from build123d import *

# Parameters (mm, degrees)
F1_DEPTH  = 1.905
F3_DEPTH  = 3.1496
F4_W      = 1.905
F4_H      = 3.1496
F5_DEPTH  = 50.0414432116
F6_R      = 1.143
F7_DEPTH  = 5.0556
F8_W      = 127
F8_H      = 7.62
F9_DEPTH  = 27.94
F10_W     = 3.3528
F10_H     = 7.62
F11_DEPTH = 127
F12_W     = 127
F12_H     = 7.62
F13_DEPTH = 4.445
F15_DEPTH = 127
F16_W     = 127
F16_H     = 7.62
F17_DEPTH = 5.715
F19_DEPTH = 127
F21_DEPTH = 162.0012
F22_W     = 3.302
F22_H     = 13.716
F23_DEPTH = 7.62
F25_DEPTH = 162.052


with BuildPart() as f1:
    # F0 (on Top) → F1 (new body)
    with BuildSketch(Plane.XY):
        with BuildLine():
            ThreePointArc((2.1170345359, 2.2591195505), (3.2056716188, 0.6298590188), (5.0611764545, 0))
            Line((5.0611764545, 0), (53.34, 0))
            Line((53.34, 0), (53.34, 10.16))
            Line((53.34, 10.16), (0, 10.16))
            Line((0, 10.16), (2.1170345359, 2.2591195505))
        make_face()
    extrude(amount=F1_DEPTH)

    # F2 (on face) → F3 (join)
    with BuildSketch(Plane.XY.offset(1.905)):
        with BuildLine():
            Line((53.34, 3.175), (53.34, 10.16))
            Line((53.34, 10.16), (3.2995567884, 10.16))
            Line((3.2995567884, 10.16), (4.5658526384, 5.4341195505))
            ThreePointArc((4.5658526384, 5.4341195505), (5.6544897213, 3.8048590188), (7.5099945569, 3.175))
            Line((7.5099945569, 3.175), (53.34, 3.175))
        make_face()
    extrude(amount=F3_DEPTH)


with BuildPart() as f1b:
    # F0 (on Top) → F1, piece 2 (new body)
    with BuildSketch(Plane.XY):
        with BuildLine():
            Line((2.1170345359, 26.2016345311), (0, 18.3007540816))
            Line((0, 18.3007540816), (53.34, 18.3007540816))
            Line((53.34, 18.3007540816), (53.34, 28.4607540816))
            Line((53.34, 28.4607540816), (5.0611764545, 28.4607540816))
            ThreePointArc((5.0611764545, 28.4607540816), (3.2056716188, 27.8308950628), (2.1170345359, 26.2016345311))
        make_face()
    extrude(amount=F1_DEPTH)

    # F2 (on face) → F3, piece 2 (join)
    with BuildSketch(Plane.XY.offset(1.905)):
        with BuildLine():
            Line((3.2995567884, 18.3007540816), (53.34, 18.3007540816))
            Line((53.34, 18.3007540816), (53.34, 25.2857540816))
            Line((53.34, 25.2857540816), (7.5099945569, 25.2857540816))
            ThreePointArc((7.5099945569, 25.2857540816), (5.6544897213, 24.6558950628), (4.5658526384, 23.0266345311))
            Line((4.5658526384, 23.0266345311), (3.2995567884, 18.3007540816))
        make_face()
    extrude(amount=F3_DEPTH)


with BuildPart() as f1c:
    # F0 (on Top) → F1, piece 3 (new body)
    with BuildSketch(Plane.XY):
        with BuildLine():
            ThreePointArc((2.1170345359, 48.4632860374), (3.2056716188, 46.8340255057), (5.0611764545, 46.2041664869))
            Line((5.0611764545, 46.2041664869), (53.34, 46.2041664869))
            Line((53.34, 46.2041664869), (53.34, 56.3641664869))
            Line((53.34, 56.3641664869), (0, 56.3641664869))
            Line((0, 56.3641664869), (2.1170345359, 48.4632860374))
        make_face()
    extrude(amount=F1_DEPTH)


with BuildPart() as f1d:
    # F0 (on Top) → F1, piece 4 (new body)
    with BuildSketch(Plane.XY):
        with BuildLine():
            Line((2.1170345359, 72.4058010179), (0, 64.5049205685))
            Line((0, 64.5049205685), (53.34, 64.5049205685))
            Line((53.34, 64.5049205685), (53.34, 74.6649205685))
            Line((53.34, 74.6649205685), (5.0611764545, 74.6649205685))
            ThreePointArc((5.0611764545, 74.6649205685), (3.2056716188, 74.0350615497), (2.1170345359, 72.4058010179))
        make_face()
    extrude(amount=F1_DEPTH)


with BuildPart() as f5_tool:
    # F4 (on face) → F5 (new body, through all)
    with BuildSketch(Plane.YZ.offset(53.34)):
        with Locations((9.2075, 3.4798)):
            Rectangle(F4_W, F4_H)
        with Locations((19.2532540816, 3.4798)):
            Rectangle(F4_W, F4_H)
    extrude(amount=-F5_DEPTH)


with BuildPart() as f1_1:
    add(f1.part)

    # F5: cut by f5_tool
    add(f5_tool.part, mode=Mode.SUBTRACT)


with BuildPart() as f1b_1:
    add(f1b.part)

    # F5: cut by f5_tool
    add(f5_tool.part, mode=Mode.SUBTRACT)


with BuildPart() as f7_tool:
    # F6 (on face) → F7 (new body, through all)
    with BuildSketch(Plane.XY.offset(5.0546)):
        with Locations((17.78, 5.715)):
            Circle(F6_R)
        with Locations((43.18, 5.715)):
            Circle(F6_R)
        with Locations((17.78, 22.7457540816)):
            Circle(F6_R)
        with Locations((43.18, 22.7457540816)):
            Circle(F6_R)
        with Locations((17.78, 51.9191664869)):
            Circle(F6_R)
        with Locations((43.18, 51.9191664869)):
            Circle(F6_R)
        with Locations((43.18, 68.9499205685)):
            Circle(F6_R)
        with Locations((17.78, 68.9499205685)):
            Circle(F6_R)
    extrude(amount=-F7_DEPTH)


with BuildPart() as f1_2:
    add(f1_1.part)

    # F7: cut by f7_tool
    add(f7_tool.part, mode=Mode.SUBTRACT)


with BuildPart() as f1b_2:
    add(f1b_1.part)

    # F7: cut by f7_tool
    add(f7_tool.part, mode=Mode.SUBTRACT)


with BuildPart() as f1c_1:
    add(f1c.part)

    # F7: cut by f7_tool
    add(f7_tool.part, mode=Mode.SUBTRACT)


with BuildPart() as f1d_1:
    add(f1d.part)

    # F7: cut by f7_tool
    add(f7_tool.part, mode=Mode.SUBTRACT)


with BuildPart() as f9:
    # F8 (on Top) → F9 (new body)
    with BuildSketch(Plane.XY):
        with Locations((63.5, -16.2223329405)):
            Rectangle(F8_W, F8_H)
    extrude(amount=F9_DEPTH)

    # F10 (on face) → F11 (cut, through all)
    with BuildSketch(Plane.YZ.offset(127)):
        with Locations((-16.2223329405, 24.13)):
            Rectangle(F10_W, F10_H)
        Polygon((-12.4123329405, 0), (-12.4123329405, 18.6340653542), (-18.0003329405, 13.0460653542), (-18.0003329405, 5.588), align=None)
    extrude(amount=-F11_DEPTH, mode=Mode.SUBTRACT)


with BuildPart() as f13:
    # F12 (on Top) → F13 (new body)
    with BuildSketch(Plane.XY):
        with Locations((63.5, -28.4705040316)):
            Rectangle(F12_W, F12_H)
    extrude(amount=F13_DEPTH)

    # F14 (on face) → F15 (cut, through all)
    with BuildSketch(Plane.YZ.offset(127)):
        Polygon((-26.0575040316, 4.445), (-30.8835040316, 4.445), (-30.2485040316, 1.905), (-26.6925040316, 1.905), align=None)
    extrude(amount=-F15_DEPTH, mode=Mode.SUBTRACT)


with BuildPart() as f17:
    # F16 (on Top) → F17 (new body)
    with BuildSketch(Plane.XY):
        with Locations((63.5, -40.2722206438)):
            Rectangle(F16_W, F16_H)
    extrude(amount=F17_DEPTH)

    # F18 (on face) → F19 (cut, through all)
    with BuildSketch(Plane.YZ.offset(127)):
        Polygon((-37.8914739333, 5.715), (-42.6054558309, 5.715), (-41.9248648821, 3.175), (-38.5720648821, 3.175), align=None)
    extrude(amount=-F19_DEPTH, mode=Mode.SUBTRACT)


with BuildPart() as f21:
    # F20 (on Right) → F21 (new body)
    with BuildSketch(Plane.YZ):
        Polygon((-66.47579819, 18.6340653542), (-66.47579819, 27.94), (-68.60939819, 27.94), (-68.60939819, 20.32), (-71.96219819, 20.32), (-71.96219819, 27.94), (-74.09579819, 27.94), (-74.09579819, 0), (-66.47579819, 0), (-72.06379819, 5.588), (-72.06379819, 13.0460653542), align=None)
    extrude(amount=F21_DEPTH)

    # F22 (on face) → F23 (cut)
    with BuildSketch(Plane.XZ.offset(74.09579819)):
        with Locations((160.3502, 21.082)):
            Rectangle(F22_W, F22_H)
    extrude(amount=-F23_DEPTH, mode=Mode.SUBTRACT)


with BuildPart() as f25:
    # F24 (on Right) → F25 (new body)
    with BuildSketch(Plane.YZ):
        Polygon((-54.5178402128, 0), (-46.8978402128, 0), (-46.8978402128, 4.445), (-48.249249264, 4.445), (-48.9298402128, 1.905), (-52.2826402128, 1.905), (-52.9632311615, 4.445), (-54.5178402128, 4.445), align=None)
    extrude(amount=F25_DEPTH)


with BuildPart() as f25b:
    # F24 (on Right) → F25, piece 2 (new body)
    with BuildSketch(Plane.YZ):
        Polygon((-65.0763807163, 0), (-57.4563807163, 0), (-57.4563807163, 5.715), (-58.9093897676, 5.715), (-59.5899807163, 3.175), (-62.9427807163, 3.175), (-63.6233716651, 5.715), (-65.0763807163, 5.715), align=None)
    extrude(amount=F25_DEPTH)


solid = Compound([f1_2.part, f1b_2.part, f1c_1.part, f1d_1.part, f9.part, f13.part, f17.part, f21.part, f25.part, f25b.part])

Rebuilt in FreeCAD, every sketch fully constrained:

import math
import FreeCAD as App
import Part
import Sketcher
Q = App.Units.Quantity


def add_polygon(sketch, points):
    """Adds a closed chain of lines whose ends are joined by coincident constraints."""
    first, n = sketch.GeometryCount, len(points)
    for a, b in zip(points, points[1:] + points[:1]):
        sketch.addGeometry(Part.LineSegment(App.Vector(*a, 0), App.Vector(*b, 0)), False)
    for i in range(n):
        sketch.addConstraint(Sketcher.Constraint("Coincident", first + i, 2, first + (i + 1) % n, 1))

doc = App.newDocument("Part")
params = doc.addObject("Spreadsheet::Sheet", "Params")
for row, (alias, value) in enumerate([
    ("sketch1_radius", "0.12 in"),
    ("sketch1_width", "2.1 in"),
    ("sketch1_height", "0.4 in"),
    ("pad1_length", "0.075 in"),
    ("sketch2_radius", "0.12 in"),
    ("sketch2_height", "0.275 in"),
    ("pad2_length", "0.124 in"),
    ("sketch3_radius", "0.12 in"),
    ("sketch3_width", "2.1 in"),
    ("sketch3_height", "0.4 in"),
    ("pad3_length", "0.075 in"),
    ("sketch4_radius", "0.12 in"),
    ("sketch4_height", "0.275 in"),
    ("pad4_length", "0.124 in"),
    ("sketch5_radius", "0.12 in"),
    ("sketch5_width", "2.1 in"),
    ("sketch5_height", "0.4 in"),
    ("pad5_length", "0.075 in"),
    ("sketch6_radius", "0.12 in"),
    ("sketch6_width", "2.1 in"),
    ("sketch6_height", "0.4 in"),
    ("pad6_length", "0.075 in"),
    ("sketch7_width", "0.075 in"),
    ("sketch7_height", "0.124 in"),
    ("pad7_length", "50.041443 mm"),
    ("sketch8_diameter", "0.09 in"),
    ("pad8_length", "5.0556 mm"),
    ("sketch9_width", "5 in"),
    ("sketch9_height", "0.3 in"),
    ("pad9_length", "1.1 in"),
    ("sketch10_height", "0.3 in"),
    ("sketch10_width", "0.132 in"),
    ("sketch11_width", "5 in"),
    ("sketch11_height", "0.3 in"),
    ("pad10_length", "0.175 in"),
    ("sketch12_width", "0.19 in"),
    ("sketch12_width2", "0.14 in"),
    ("sketch13_width", "5 in"),
    ("sketch13_height", "0.3 in"),
    ("pad11_length", "0.225 in"),
    ("sketch14_width", "0.132 in"),
    ("sketch15_width", "0.3 in"),
    ("sketch15_height", "1.1 in"),
    ("sketch15_width2", "0.084 in"),
    ("pad12_length", "6.378 in"),
    ("sketch16_width", "0.13 in"),
    ("sketch16_height", "0.54 in"),
    ("pocket4_length", "0.3 in"),
    ("sketch17_width", "0.3 in"),
    ("sketch17_width2", "0.132 in"),
    ("sketch17_height", "0.175 in"),
    ("pad13_length", "6.38 in"),
    ("sketch18_width", "0.3 in"),
    ("sketch18_width2", "0.132 in"),
    ("sketch18_height", "0.225 in"),
    ("pad14_length", "6.38 in"),
], start=1):
    params.set(f"A{row}", alias)
    params.set(f"B{row}", "=" + value)
    params.setAlias(f"B{row}", alias)

body = doc.addObject("PartDesign::Body", "Body")

sketch1 = body.newObject("Sketcher::SketchObject", "Sketch")
sketch1.AttachmentSupport = (doc.getObject("XY_Plane"), [""])
sketch1.MapMode = "FlatFace"
sketch1.addGeometry([
    Part.ArcOfCircle(Part.Circle(App.Vector(5.1, 3, 0), App.Vector(0, 0, 1), 3), math.radians(-165), math.radians(-90)),
    Part.LineSegment(App.Vector(5.1, 0, 0), App.Vector(53.3, 0, 0)),
    Part.LineSegment(App.Vector(53.3, 0, 0), App.Vector(53.3, 10.2, 0)),
    Part.LineSegment(App.Vector(53.3, 10.2, 0), App.Vector(0, 10.2, 0)),
    Part.LineSegment(App.Vector(0, 10.2, 0), App.Vector(2.1, 2.3, 0)),
], False)
sketch1.addConstraint([
    Sketcher.Constraint("Tangent", 0, 2, 1, 1),
    Sketcher.Constraint("Coincident", 1, 2, 2, 1),
    Sketcher.Constraint("Coincident", 2, 2, 3, 1),
    Sketcher.Constraint("Coincident", 3, 2, 4, 1),
    Sketcher.Constraint("Tangent", 4, 2, 0, 1),
    Sketcher.Constraint("Horizontal", 1),
    Sketcher.Constraint("Vertical", 2),
    Sketcher.Constraint("Horizontal", 3),
    Sketcher.Constraint("PointOnObject", 0, 2, -1),
    Sketcher.Constraint("PointOnObject", 3, 2, -2),
    Sketcher.Constraint("Radius", 0, Q("0.12 in")),
    Sketcher.Constraint("DistanceX", 3, 2, 3, 1, Q("2.1 in")),
    Sketcher.Constraint("DistanceY", 2, 1, 2, 2, Q("0.4 in")),
    Sketcher.Constraint("Angle", 4, Q("-75 deg")),
])
sketch1.setExpression("Constraints[10]", "Params.sketch1_radius")
sketch1.setExpression("Constraints[11]", "Params.sketch1_width")
sketch1.setExpression("Constraints[12]", "Params.sketch1_height")
pad1 = body.newObject("PartDesign::Pad", "Pad")
pad1.Profile = sketch1
pad1.setExpression("Length", "Params.pad1_length")

sketch2 = body.newObject("Sketcher::SketchObject", "Sketch001")
sketch2.AttachmentSupport = (doc.getObject("XY_Plane"), [""])
sketch2.MapMode = "FlatFace"
sketch2.AttachmentOffset = App.Placement(App.Vector(0, 0, 0.075 * 25.4), App.Rotation())
sketch2.addGeometry([
    Part.LineSegment(App.Vector(53.3, 3.2, 0), App.Vector(53.3, 10.2, 0)),
    Part.LineSegment(App.Vector(53.3, 10.2, 0), App.Vector(3.3, 10.2, 0)),
    Part.LineSegment(App.Vector(3.3, 10.2, 0), App.Vector(4.6, 5.4, 0)),
    Part.ArcOfCircle(Part.Circle(App.Vector(7.5, 6.2, 0), App.Vector(0, 0, 1), 3), math.radians(-165), math.radians(-90)),
    Part.LineSegment(App.Vector(7.5, 3.2, 0), App.Vector(53.3, 3.2, 0)),
], False)
sketch2.addConstraint([
    Sketcher.Constraint("Coincident", 0, 2, 1, 1),
    Sketcher.Constraint("Coincident", 1, 2, 2, 1),
    Sketcher.Constraint("Tangent", 2, 2, 3, 1),
    Sketcher.Constraint("Tangent", 3, 2, 4, 1),
    Sketcher.Constraint("Coincident", 4, 2, 0, 1),
    Sketcher.Constraint("Vertical", 0),
    Sketcher.Constraint("Horizontal", 1),
    Sketcher.Constraint("Horizontal", 4),
    Sketcher.Constraint("Radius", 3, Q("0.12 in")),
    Sketcher.Constraint("Angle", 2, Q("-75 deg")),
    Sketcher.Constraint("DistanceX", -1, 1, 0, 2, Q("2.1 in")),
    Sketcher.Constraint("DistanceY", -1, 1, 0, 2, Q("0.4 in")),
    Sketcher.Constraint("DistanceY", 0, 1, 0, 2, Q("0.275 in")),
    Sketcher.Constraint("DistanceX", 1, 2, 1, 1, 50.040443),
])
sketch2.setExpression("Constraints[8]", "Params.sketch2_radius")
sketch2.setExpression("Constraints[12]", "Params.sketch2_height")
pad2 = body.newObject("PartDesign::Pad", "Pad001")
pad2.Profile = sketch2
pad2.setExpression("Length", "Params.pad2_length")
body2 = doc.addObject("PartDesign::Body", "Body001")

sketch3 = body2.newObject("Sketcher::SketchObject", "Sketch002")
sketch3.AttachmentSupport = (doc.getObject("XY_Plane001"), [""])
sketch3.MapMode = "FlatFace"
sketch3.addGeometry([
    Part.LineSegment(App.Vector(2.1, 26.2, 0), App.Vector(0, 18.3, 0)),
    Part.LineSegment(App.Vector(0, 18.3, 0), App.Vector(53.3, 18.3, 0)),
    Part.LineSegment(App.Vector(53.3, 18.3, 0), App.Vector(53.3, 28.5, 0)),
    Part.LineSegment(App.Vector(53.3, 28.5, 0), App.Vector(5.1, 28.5, 0)),
    Part.ArcOfCircle(Part.Circle(App.Vector(5.1, 25.4, 0), App.Vector(0, 0, 1), 3), math.radians(90), math.radians(165)),
], False)
sketch3.addConstraint([
    Sketcher.Constraint("Coincident", 0, 2, 1, 1),
    Sketcher.Constraint("Coincident", 1, 2, 2, 1),
    Sketcher.Constraint("Coincident", 2, 2, 3, 1),
    Sketcher.Constraint("Tangent", 3, 2, 4, 1),
    Sketcher.Constraint("Tangent", 4, 2, 0, 1),
    Sketcher.Constraint("Horizontal", 1),
    Sketcher.Constraint("Vertical", 2),
    Sketcher.Constraint("Horizontal", 3),
    Sketcher.Constraint("PointOnObject", 0, 2, -2),
    Sketcher.Constraint("Radius", 4, Q("0.12 in")),
    Sketcher.Constraint("DistanceX", 1, 1, 1, 2, Q("2.1 in")),
    Sketcher.Constraint("DistanceY", 2, 1, 2, 2, Q("0.4 in")),
    Sketcher.Constraint("Angle", 0, Q("-105 deg")),
    Sketcher.Constraint("DistanceY", -1, 1, 4, 3, 25.412754),
])
sketch3.setExpression("Constraints[9]", "Params.sketch3_radius")
sketch3.setExpression("Constraints[10]", "Params.sketch3_width")
sketch3.setExpression("Constraints[11]", "Params.sketch3_height")
pad3 = body2.newObject("PartDesign::Pad", "Pad002")
pad3.Profile = sketch3
pad3.setExpression("Length", "Params.pad3_length")

sketch4 = body2.newObject("Sketcher::SketchObject", "Sketch003")
sketch4.AttachmentSupport = (doc.getObject("XY_Plane001"), [""])
sketch4.MapMode = "FlatFace"
sketch4.AttachmentOffset = App.Placement(App.Vector(0, 0, 0.075 * 25.4), App.Rotation())
sketch4.addGeometry([
    Part.LineSegment(App.Vector(3.3, 18.3, 0), App.Vector(53.3, 18.3, 0)),
    Part.LineSegment(App.Vector(53.3, 18.3, 0), App.Vector(53.3, 25.3, 0)),
    Part.LineSegment(App.Vector(53.3, 25.3, 0), App.Vector(7.5, 25.3, 0)),
    Part.ArcOfCircle(Part.Circle(App.Vector(7.5, 22.2, 0), App.Vector(0, 0, 1), 3), math.radians(90), math.radians(165)),
    Part.LineSegment(App.Vector(4.6, 23, 0), App.Vector(3.3, 18.3, 0)),
], False)
sketch4.addConstraint([
    Sketcher.Constraint("Coincident", 0, 2, 1, 1),
    Sketcher.Constraint("Coincident", 1, 2, 2, 1),
    Sketcher.Constraint("Tangent", 2, 2, 3, 1),
    Sketcher.Constraint("Tangent", 3, 2, 4, 1),
    Sketcher.Constraint("Coincident", 4, 2, 0, 1),
    Sketcher.Constraint("Horizontal", 0),
    Sketcher.Constraint("Vertical", 1),
    Sketcher.Constraint("Horizontal", 2),
    Sketcher.Constraint("Radius", 3, Q("0.12 in")),
    Sketcher.Constraint("Angle", 4, Q("-105 deg")),
    Sketcher.Constraint("DistanceX", -1, 1, 0, 2, Q("2.1 in")),
    Sketcher.Constraint("DistanceY", 1, 1, 1, 2, Q("0.275 in")),
    Sketcher.Constraint("DistanceX", 0, 1, 0, 2, 50.040443),
    Sketcher.Constraint("DistanceY", -1, 1, 3, 3, 22.237754),
])
sketch4.setExpression("Constraints[8]", "Params.sketch4_radius")
sketch4.setExpression("Constraints[11]", "Params.sketch4_height")
pad4 = body2.newObject("PartDesign::Pad", "Pad003")
pad4.Profile = sketch4
pad4.setExpression("Length", "Params.pad4_length")
body3 = doc.addObject("PartDesign::Body", "Body002")

sketch5 = body3.newObject("Sketcher::SketchObject", "Sketch004")
sketch5.AttachmentSupport = (doc.getObject("XY_Plane002"), [""])
sketch5.MapMode = "FlatFace"
sketch5.addGeometry([
    Part.ArcOfCircle(Part.Circle(App.Vector(5.1, 49.3, 0), App.Vector(0, 0, 1), 3), math.radians(-165), math.radians(-90)),
    Part.LineSegment(App.Vector(5.1, 46.2, 0), App.Vector(53.3, 46.2, 0)),
    Part.LineSegment(App.Vector(53.3, 46.2, 0), App.Vector(53.3, 56.4, 0)),
    Part.LineSegment(App.Vector(53.3, 56.4, 0), App.Vector(0, 56.4, 0)),
    Part.LineSegment(App.Vector(0, 56.4, 0), App.Vector(2.1, 48.5, 0)),
], False)
sketch5.addConstraint([
    Sketcher.Constraint("Tangent", 0, 2, 1, 1),
    Sketcher.Constraint("Coincident", 1, 2, 2, 1),
    Sketcher.Constraint("Coincident", 2, 2, 3, 1),
    Sketcher.Constraint("Coincident", 3, 2, 4, 1),
    Sketcher.Constraint("Tangent", 4, 2, 0, 1),
    Sketcher.Constraint("Horizontal", 1),
    Sketcher.Constraint("Vertical", 2),
    Sketcher.Constraint("Horizontal", 3),
    Sketcher.Constraint("PointOnObject", 3, 2, -2),
    Sketcher.Constraint("Radius", 0, Q("0.12 in")),
    Sketcher.Constraint("DistanceX", 3, 2, 3, 1, Q("2.1 in")),
    Sketcher.Constraint("DistanceY", 2, 1, 2, 2, Q("0.4 in")),
    Sketcher.Constraint("Angle", 4, Q("-75 deg")),
    Sketcher.Constraint("DistanceY", -1, 1, 0, 3, 49.252166),
])
sketch5.setExpression("Constraints[9]", "Params.sketch5_radius")
sketch5.setExpression("Constraints[10]", "Params.sketch5_width")
sketch5.setExpression("Constraints[11]", "Params.sketch5_height")
pad5 = body3.newObject("PartDesign::Pad", "Pad004")
pad5.Profile = sketch5
pad5.setExpression("Length", "Params.pad5_length")
body4 = doc.addObject("PartDesign::Body", "Body003")

sketch6 = body4.newObject("Sketcher::SketchObject", "Sketch005")
sketch6.AttachmentSupport = (doc.getObject("XY_Plane003"), [""])
sketch6.MapMode = "FlatFace"
sketch6.addGeometry([
    Part.LineSegment(App.Vector(2.1, 72.4, 0), App.Vector(0, 64.5, 0)),
    Part.LineSegment(App.Vector(0, 64.5, 0), App.Vector(53.3, 64.5, 0)),
    Part.LineSegment(App.Vector(53.3, 64.5, 0), App.Vector(53.3, 74.7, 0)),
    Part.LineSegment(App.Vector(53.3, 74.7, 0), App.Vector(5.1, 74.7, 0)),
    Part.ArcOfCircle(Part.Circle(App.Vector(5.1, 71.6, 0), App.Vector(0, 0, 1), 3), math.radians(90), math.radians(165)),
], False)
sketch6.addConstraint([
    Sketcher.Constraint("Coincident", 0, 2, 1, 1),
    Sketcher.Constraint("Coincident", 1, 2, 2, 1),
    Sketcher.Constraint("Coincident", 2, 2, 3, 1),
    Sketcher.Constraint("Tangent", 3, 2, 4, 1),
    Sketcher.Constraint("Tangent", 4, 2, 0, 1),
    Sketcher.Constraint("Horizontal", 1),
    Sketcher.Constraint("Vertical", 2),
    Sketcher.Constraint("Horizontal", 3),
    Sketcher.Constraint("PointOnObject", 0, 2, -2),
    Sketcher.Constraint("Radius", 4, Q("0.12 in")),
    Sketcher.Constraint("DistanceX", 1, 1, 1, 2, Q("2.1 in")),
    Sketcher.Constraint("DistanceY", 2, 1, 2, 2, Q("0.4 in")),
    Sketcher.Constraint("Angle", 0, Q("-105 deg")),
    Sketcher.Constraint("DistanceY", -1, 1, 4, 2, 72.405801),
])
sketch6.setExpression("Constraints[9]", "Params.sketch6_radius")
sketch6.setExpression("Constraints[10]", "Params.sketch6_width")
sketch6.setExpression("Constraints[11]", "Params.sketch6_height")
pad6 = body4.newObject("PartDesign::Pad", "Pad005")
pad6.Profile = sketch6
pad6.setExpression("Length", "Params.pad6_length")
body5 = doc.addObject("PartDesign::Body", "Body004")
body5.AllowCompound = True

sketch7 = body5.newObject("Sketcher::SketchObject", "Sketch006")
sketch7.AttachmentSupport = (doc.getObject("YZ_Plane004"), [""])
sketch7.MapMode = "FlatFace"
sketch7.AttachmentOffset = App.Placement(App.Vector(0, 0, 2.1 * 25.4), App.Rotation())
add_polygon(sketch7, [(8.3, 5.1), (8.3, 1.9), (10.2, 1.9), (10.2, 5.1)])
add_polygon(sketch7, [(18.3, 5.1), (18.3, 1.9), (20.2, 1.9), (20.2, 5.1)])
sketch7.addConstraint([
    Sketcher.Constraint("Vertical", 0),
    Sketcher.Constraint("Horizontal", 1),
    Sketcher.Constraint("Vertical", 2),
    Sketcher.Constraint("Horizontal", 3),
    Sketcher.Constraint("Vertical", 4),
    Sketcher.Constraint("Horizontal", 5),
    Sketcher.Constraint("Vertical", 6),
    Sketcher.Constraint("Horizontal", 7),
    Sketcher.Constraint("Horizontal", 1, 2, 4, 2),
    Sketcher.Constraint("Horizontal", 3, 2, 6, 2),
    Sketcher.Constraint("Equal", 3, 5),
    Sketcher.Constraint("DistanceX", -1, 1, 1, 2, Q("0.4 in")),
    Sketcher.Constraint("DistanceX", 1, 1, 1, 2, Q("0.075 in")),
    Sketcher.Constraint("DistanceY", 0, 2, 0, 1, Q("0.124 in")),
    Sketcher.Constraint("DistanceY", -1, 1, 0, 2, Q("0.075 in")),
    Sketcher.Constraint("DistanceX", -1, 1, 4, 2, 18.300754),
])
sketch7.setExpression("Constraints[20]", "Params.sketch7_width")
sketch7.setExpression("Constraints[21]", "Params.sketch7_height")
pad7 = body5.newObject("PartDesign::Pad", "Pad006")
pad7.Profile = sketch7
pad7.setExpression("Length", "Params.pad7_length")
pad7.Reversed = True
doc.recompute()

body6 = doc.addObject("PartDesign::Body", "Body005")
body6.BaseFeature = body5
boolean = body.newObject("PartDesign::Boolean", "Boolean")
boolean.Type = "Cut"
boolean.addObjects([body6])
doc.recompute()

boolean2 = body2.newObject("PartDesign::Boolean", "Boolean001")
boolean2.Type = "Cut"
boolean2.addObjects([body5])
body7 = doc.addObject("PartDesign::Body", "Body006")
body7.AllowCompound = True

sketch8 = body7.newObject("Sketcher::SketchObject", "Sketch007")
sketch8.AttachmentSupport = (doc.getObject("XY_Plane006"), [""])
sketch8.MapMode = "FlatFace"
sketch8.AttachmentOffset = App.Placement(App.Vector(0, 0, 0.199 * 25.4), App.Rotation())
sketch8.addGeometry([
    Part.Circle(App.Vector(17.8, 5.7, 0), App.Vector(0, 0, 1), 1.1),
    Part.Circle(App.Vector(43.2, 5.7, 0), App.Vector(0, 0, 1), 1.1),
    Part.Circle(App.Vector(17.8, 22.7, 0), App.Vector(0, 0, 1), 1.1),
    Part.Circle(App.Vector(43.2, 22.7, 0), App.Vector(0, 0, 1), 1.1),
    Part.Circle(App.Vector(17.8, 51.9, 0), App.Vector(0, 0, 1), 1.1),
    Part.Circle(App.Vector(43.2, 51.9, 0), App.Vector(0, 0, 1), 1.1),
    Part.Circle(App.Vector(43.2, 68.9, 0), App.Vector(0, 0, 1), 1.1),
    Part.Circle(App.Vector(17.8, 68.9, 0), App.Vector(0, 0, 1), 1.1),
], False)
sketch8.addConstraint([
    Sketcher.Constraint("Equal", 0, 1),
    Sketcher.Constraint("Equal", 1, 2),
    Sketcher.Constraint("Equal", 2, 3),
    Sketcher.Constraint("Equal", 3, 4),
    Sketcher.Constraint("Equal", 4, 5),
    Sketcher.Constraint("Equal", 5, 6),
    Sketcher.Constraint("Equal", 6, 7),
    Sketcher.Constraint("Horizontal", 0, 3, 1, 3),
    Sketcher.Constraint("Horizontal", 2, 3, 3, 3),
    Sketcher.Constraint("Horizontal", 4, 3, 5, 3),
    Sketcher.Constraint("Horizontal", 6, 3, 7, 3),
    Sketcher.Constraint("Vertical", 0, 3, 2, 3),
    Sketcher.Constraint("Vertical", 1, 3, 3, 3),
    Sketcher.Constraint("Vertical", 2, 3, 4, 3),
    Sketcher.Constraint("Vertical", 3, 3, 5, 3),
    Sketcher.Constraint("Vertical", 5, 3, 6, 3),
    Sketcher.Constraint("Vertical", 4, 3, 7, 3),
    Sketcher.Constraint("Diameter", 0, Q("0.09 in")),
    Sketcher.Constraint("DistanceX", 0, 3, 1, 3, Q("1 in")),
    Sketcher.Constraint("DistanceX", -1, 1, 0, 3, Q("0.7 in")),
    Sketcher.Constraint("DistanceY", -1, 1, 0, 3, Q("0.225 in")),
    Sketcher.Constraint("DistanceY", -1, 1, 6, 3, 68.949921),
    Sketcher.Constraint("DistanceY", -1, 1, 2, 3, 22.745754),
    Sketcher.Constraint("DistanceY", -1, 1, 4, 3, 51.919166),
])
sketch8.setExpression("Constraints[17]", "Params.sketch8_diameter")
pad8 = body7.newObject("PartDesign::Pad", "Pad007")
pad8.Profile = sketch8
pad8.setExpression("Length", "Params.pad8_length")
pad8.Reversed = True
doc.recompute()

body8 = doc.addObject("PartDesign::Body", "Body007")
body8.BaseFeature = body7
boolean3 = body.newObject("PartDesign::Boolean", "Boolean002")
boolean3.Type = "Cut"
boolean3.addObjects([body8])
doc.recompute()

body9 = doc.addObject("PartDesign::Body", "Body008")
body9.BaseFeature = body7
boolean4 = body2.newObject("PartDesign::Boolean", "Boolean003")
boolean4.Type = "Cut"
boolean4.addObjects([body9])
doc.recompute()

body10 = doc.addObject("PartDesign::Body", "Body009")
body10.BaseFeature = body7
boolean5 = body3.newObject("PartDesign::Boolean", "Boolean004")
boolean5.Type = "Cut"
boolean5.addObjects([body10])
doc.recompute()

boolean6 = body4.newObject("PartDesign::Boolean", "Boolean005")
boolean6.Type = "Cut"
boolean6.addObjects([body7])
body11 = doc.addObject("PartDesign::Body", "Body010")

sketch9 = body11.newObject("Sketcher::SketchObject", "Sketch008")
sketch9.AttachmentSupport = (doc.getObject("XY_Plane010"), [""])
sketch9.MapMode = "FlatFace"
add_polygon(sketch9, [(0, -12), (0, -20), (127, -20), (127, -12)])
sketch9.addConstraint([
    Sketcher.Constraint("Vertical", 0),
    Sketcher.Constraint("Horizontal", 1),
    Sketcher.Constraint("Vertical", 2),
    Sketcher.Constraint("Horizontal", 3),
    Sketcher.Constraint("PointOnObject", 0, 2, -2),
    Sketcher.Constraint("DistanceX", 1, 1, 1, 2, Q("5 in")),
    Sketcher.Constraint("DistanceY", 0, 2, 0, 1, Q("0.3 in")),
    Sketcher.Constraint("DistanceY", 0, 2, -1, 1, 20.032333),
])
sketch9.setExpression("Constraints[9]", "Params.sketch9_width")
sketch9.setExpression("Constraints[10]", "Params.sketch9_height")
pad9 = body11.newObject("PartDesign::Pad", "Pad008")
pad9.Profile = sketch9
pad9.setExpression("Length", "Params.pad9_length")

sketch10 = body11.newObject("Sketcher::SketchObject", "Sketch009")
sketch10.AttachmentSupport = (doc.getObject("YZ_Plane010"), [""])
sketch10.MapMode = "FlatFace"
sketch10.AttachmentOffset = App.Placement(App.Vector(0, 0, 5 * 25.4), App.Rotation())
add_polygon(sketch10, [(-17.9, 27.9), (-17.9, 20.3), (-14.5, 20.3), (-14.5, 27.9)])
add_polygon(sketch10, [(-12.4, 0), (-12.4, 18.6), (-18, 13), (-18, 5.6)])
sketch10.addConstraint([
    Sketcher.Constraint("Vertical", 0),
    Sketcher.Constraint("Horizontal", 1),
    Sketcher.Constraint("Vertical", 2),
    Sketcher.Constraint("Horizontal", 3),
    Sketcher.Constraint("Vertical", 4),
    Sketcher.Constraint("Vertical", 6),
    Sketcher.Constraint("PointOnObject", 7, 2, -1),
    Sketcher.Constraint("Perpendicular", 5, 7),
    Sketcher.Constraint("Equal", 5, 7),
    Sketcher.Constraint("DistanceY", 0, 2, 0, 1, Q("0.3 in")),
    Sketcher.Constraint("DistanceY", -1, 1, 0, 2, Q("0.8 in")),
    Sketcher.Constraint("DistanceX", 1, 1, 1, 2, Q("0.132 in")),
    Sketcher.Constraint("DistanceY", -1, 1, 6, 2, Q("0.22 in")),
    Sketcher.Constraint("DistanceX", 1, 2, 4, 2, Q("0.084 in")),
    Sketcher.Constraint("DistanceY", 4, 1, 4, 2, 18.634065),
    Sketcher.Constraint("DistanceX", 0, 2, -1, 1, 17.898733),
])
sketch10.setExpression("Constraints[17]", "Params.sketch10_height")
sketch10.setExpression("Constraints[19]", "Params.sketch10_width")
pocket1 = body11.newObject("PartDesign::Pocket", "Pocket")
pocket1.Profile = sketch10
pocket1.Type = "ThroughAll"
body12 = doc.addObject("PartDesign::Body", "Body011")

sketch11 = body12.newObject("Sketcher::SketchObject", "Sketch010")
sketch11.AttachmentSupport = (doc.getObject("XY_Plane011"), [""])
sketch11.MapMode = "FlatFace"
add_polygon(sketch11, [(0, -25), (0, -32), (127, -32), (127, -25)])
sketch11.addConstraint([
    Sketcher.Constraint("Vertical", 0),
    Sketcher.Constraint("Horizontal", 1),
    Sketcher.Constraint("Vertical", 2),
    Sketcher.Constraint("Horizontal", 3),
    Sketcher.Constraint("PointOnObject", 0, 2, -2),
    Sketcher.Constraint("DistanceX", 1, 1, 1, 2, Q("5 in")),
    Sketcher.Constraint("DistanceY", 0, 2, 0, 1, Q("0.3 in")),
    Sketcher.Constraint("DistanceY", 0, 2, -1, 1, 32.280504),
])
sketch11.setExpression("Constraints[9]", "Params.sketch11_width")
sketch11.setExpression("Constraints[10]", "Params.sketch11_height")
pad10 = body12.newObject("PartDesign::Pad", "Pad009")
pad10.Profile = sketch11
pad10.setExpression("Length", "Params.pad10_length")

sketch12 = body12.newObject("Sketcher::SketchObject", "Sketch011")
sketch12.AttachmentSupport = (doc.getObject("YZ_Plane011"), [""])
sketch12.MapMode = "FlatFace"
sketch12.AttachmentOffset = App.Placement(App.Vector(0, 0, 5 * 25.4), App.Rotation())
add_polygon(sketch12, [(-26.1, 4.4), (-30.9, 4.4), (-30.2, 1.9), (-26.7, 1.9)])
sketch12.addConstraint([
    Sketcher.Constraint("Horizontal", 0),
    Sketcher.Constraint("Horizontal", 2),
    Sketcher.Constraint("Equal", 1, 3),
    Sketcher.Constraint("DistanceX", 0, 2, 0, 1, Q("0.19 in")),
    Sketcher.Constraint("DistanceX", 2, 1, 2, 2, Q("0.14 in")),
    Sketcher.Constraint("DistanceY", 1, 2, 0, 2, Q("0.1 in")),
    Sketcher.Constraint("DistanceY", -1, 1, 0, 2, Q("0.175 in")),
    Sketcher.Constraint("DistanceX", 0, 2, -1, 1, 30.883504),
])
sketch12.setExpression("Constraints[7]", "Params.sketch12_width")
sketch12.setExpression("Constraints[8]", "Params.sketch12_width2")
pocket2 = body12.newObject("PartDesign::Pocket", "Pocket001")
pocket2.Profile = sketch12
pocket2.Type = "ThroughAll"
body13 = doc.addObject("PartDesign::Body", "Body012")

sketch13 = body13.newObject("Sketcher::SketchObject", "Sketch012")
sketch13.AttachmentSupport = (doc.getObject("XY_Plane012"), [""])
sketch13.MapMode = "FlatFace"
add_polygon(sketch13, [(0, -36), (0, -44), (127, -44), (127, -36)])
sketch13.addConstraint([
    Sketcher.Constraint("Vertical", 0),
    Sketcher.Constraint("Horizontal", 1),
    Sketcher.Constraint("Vertical", 2),
    Sketcher.Constraint("Horizontal", 3),
    Sketcher.Constraint("PointOnObject", 0, 2, -2),
    Sketcher.Constraint("DistanceX", 1, 1, 1, 2, Q("5 in")),
    Sketcher.Constraint("DistanceY", 0, 2, 0, 1, Q("0.3 in")),
    Sketcher.Constraint("DistanceY", 0, 2, -1, 1, 44.082221),
])
sketch13.setExpression("Constraints[9]", "Params.sketch13_width")
sketch13.setExpression("Constraints[10]", "Params.sketch13_height")
pad11 = body13.newObject("PartDesign::Pad", "Pad010")
pad11.Profile = sketch13
pad11.setExpression("Length", "Params.pad11_length")

sketch14 = body13.newObject("Sketcher::SketchObject", "Sketch013")
sketch14.AttachmentSupport = (doc.getObject("YZ_Plane012"), [""])
sketch14.MapMode = "FlatFace"
sketch14.AttachmentOffset = App.Placement(App.Vector(0, 0, 5 * 25.4), App.Rotation())
add_polygon(sketch14, [(-37.9, 5.7), (-42.6, 5.7), (-41.9, 3.2), (-38.6, 3.2)])
sketch14.addConstraint([
    Sketcher.Constraint("Horizontal", 0),
    Sketcher.Constraint("Horizontal", 2),
    Sketcher.Constraint("Equal", 1, 3),
    Sketcher.Constraint("Angle", 1, Q("-75 deg")),
    Sketcher.Constraint("DistanceY", 1, 2, 0, 2, Q("0.1 in")),
    Sketcher.Constraint("DistanceX", 2, 1, 2, 2, Q("0.132 in")),
    Sketcher.Constraint("DistanceY", -1, 1, 0, 2, Q("0.225 in")),
    Sketcher.Constraint("DistanceX", 0, 2, -1, 1, 42.605456),
])
sketch14.setExpression("Constraints[9]", "Params.sketch14_width")
pocket3 = body13.newObject("PartDesign::Pocket", "Pocket002")
pocket3.Profile = sketch14
pocket3.Type = "ThroughAll"
body14 = doc.addObject("PartDesign::Body", "Body013")

sketch15 = body14.newObject("Sketcher::SketchObject", "Sketch014")
sketch15.AttachmentSupport = (doc.getObject("YZ_Plane013"), [""])
sketch15.MapMode = "FlatFace"
add_polygon(sketch15, [(-66.5, 18.6), (-66.5, 27.9), (-68.6, 27.9), (-68.6, 20.3), (-72, 20.3), (-72, 27.9), (-74.1, 27.9), (-74.1, 0), (-66.5, 0), (-72.1, 5.6), (-72.1, 13)])
sketch15.addConstraint([
    Sketcher.Constraint("Vertical", 0),
    Sketcher.Constraint("Horizontal", 1),
    Sketcher.Constraint("Vertical", 2),
    Sketcher.Constraint("Horizontal", 3),
    Sketcher.Constraint("Vertical", 4),
    Sketcher.Constraint("Horizontal", 5),
    Sketcher.Constraint("Vertical", 6),
    Sketcher.Constraint("Horizontal", 7),
    Sketcher.Constraint("Vertical", 9),
    Sketcher.Constraint("PointOnObject", 6, 2, -1),
    Sketcher.Constraint("Perpendicular", 8, 10),
    Sketcher.Constraint("Horizontal", 1, 2, 4, 2),
    Sketcher.Constraint("Vertical", 0, 2, 7, 2),
    Sketcher.Constraint("Equal", 1, 5),
    Sketcher.Constraint("Equal", 7, 2),
    Sketcher.Constraint("Equal", 8, 10),
    Sketcher.Constraint("DistanceX", 7, 1, 7, 2, Q("0.3 in")),
    Sketcher.Constraint("DistanceY", 6, 2, 6, 1, Q("1.1 in")),
    Sketcher.Constraint("DistanceX", 1, 2, 1, 1, Q("0.084 in")),
    Sketcher.Constraint("DistanceY", -1, 1, 8, 2, Q("0.22 in")),
    Sketcher.Constraint("DistanceX", 0, 2, -1, 1, 66.475798),
    Sketcher.Constraint("DistanceY", 0, 1, 0, 2, 9.305935),
])
sketch15.setExpression("Constraints[27]", "Params.sketch15_width")
sketch15.setExpression("Constraints[28]", "Params.sketch15_height")
sketch15.setExpression("Constraints[29]", "Params.sketch15_width2")
pad12 = body14.newObject("PartDesign::Pad", "Pad011")
pad12.Profile = sketch15
pad12.setExpression("Length", "Params.pad12_length")

sketch16 = body14.newObject("Sketcher::SketchObject", "Sketch015")
sketch16.AttachmentSupport = (doc.getObject("XZ_Plane013"), [""])
sketch16.MapMode = "FlatFace"
sketch16.AttachmentOffset = App.Placement(App.Vector(0, 0, 74.095798), App.Rotation())
add_polygon(sketch16, [(158.7, 27.9), (158.7, 14.2), (162, 14.2), (162, 27.9)])
sketch16.addConstraint([
    Sketcher.Constraint("Vertical", 0),
    Sketcher.Constraint("Horizontal", 1),
    Sketcher.Constraint("Vertical", 2),
    Sketcher.Constraint("Horizontal", 3),
    Sketcher.Constraint("DistanceX", 1, 1, 1, 2, Q("0.13 in")),
    Sketcher.Constraint("DistanceY", 0, 2, 0, 1, Q("0.54 in")),
    Sketcher.Constraint("DistanceY", -1, 1, 2, 2, Q("1.1 in")),
    Sketcher.Constraint("DistanceX", -1, 1, 0, 2, Q("6.248 in")),
])
sketch16.setExpression("Constraints[8]", "Params.sketch16_width")
sketch16.setExpression("Constraints[9]", "Params.sketch16_height")
pocket4 = body14.newObject("PartDesign::Pocket", "Pocket003")
pocket4.Profile = sketch16
pocket4.setExpression("Length", "Params.pocket4_length")
body15 = doc.addObject("PartDesign::Body", "Body014")

sketch17 = body15.newObject("Sketcher::SketchObject", "Sketch016")
sketch17.AttachmentSupport = (doc.getObject("YZ_Plane014"), [""])
sketch17.MapMode = "FlatFace"
add_polygon(sketch17, [(-54.5, 0), (-46.9, 0), (-46.9, 4.4), (-48.2, 4.4), (-48.9, 1.9), (-52.3, 1.9), (-53, 4.4), (-54.5, 4.4)])
sketch17.addConstraint([
    Sketcher.Constraint("Horizontal", 0),
    Sketcher.Constraint("Vertical", 1),
    Sketcher.Constraint("Horizontal", 2),
    Sketcher.Constraint("Horizontal", 4),
    Sketcher.Constraint("Horizontal", 6),
    Sketcher.Constraint("Vertical", 7),
    Sketcher.Constraint("PointOnObject", 0, 2, -1),
    Sketcher.Constraint("Horizontal", 2, 2, 5, 2),
    Sketcher.Constraint("Equal", 3, 5),
    Sketcher.Constraint("DistanceX", 0, 1, 0, 2, Q("0.3 in")),
    Sketcher.Constraint("Angle", 3, Q("-105 deg")),
    Sketcher.Constraint("DistanceY", 3, 2, 2, 2, Q("0.1 in")),
    Sketcher.Constraint("DistanceX", 4, 2, 4, 1, Q("0.132 in")),
    Sketcher.Constraint("DistanceY", 1, 1, 1, 2, Q("0.175 in")),
    Sketcher.Constraint("DistanceX", 3, 2, 0, 2, Q("0.08 in")),
    Sketcher.Constraint("DistanceX", 0, 2, -1, 1, 46.89784),
])
sketch17.setExpression("Constraints[17]", "Params.sketch17_width")
sketch17.setExpression("Constraints[20]", "Params.sketch17_width2")
sketch17.setExpression("Constraints[21]", "Params.sketch17_height")
pad13 = body15.newObject("PartDesign::Pad", "Pad012")
pad13.Profile = sketch17
pad13.setExpression("Length", "Params.pad13_length")
body16 = doc.addObject("PartDesign::Body", "Body015")

sketch18 = body16.newObject("Sketcher::SketchObject", "Sketch017")
sketch18.AttachmentSupport = (doc.getObject("YZ_Plane015"), [""])
sketch18.MapMode = "FlatFace"
add_polygon(sketch18, [(-65.1, 0), (-57.5, 0), (-57.5, 5.7), (-58.9, 5.7), (-59.6, 3.2), (-62.9, 3.2), (-63.6, 5.7), (-65.1, 5.7)])
sketch18.addConstraint([
    Sketcher.Constraint("Horizontal", 0),
    Sketcher.Constraint("Vertical", 1),
    Sketcher.Constraint("Horizontal", 2),
    Sketcher.Constraint("Horizontal", 4),
    Sketcher.Constraint("Horizontal", 6),
    Sketcher.Constraint("Vertical", 7),
    Sketcher.Constraint("PointOnObject", 0, 2, -1),
    Sketcher.Constraint("Horizontal", 2, 2, 5, 2),
    Sketcher.Constraint("Equal", 2, 6),
    Sketcher.Constraint("Equal", 3, 5),
    Sketcher.Constraint("DistanceX", 0, 1, 0, 2, Q("0.3 in")),
    Sketcher.Constraint("Angle", 3, Q("-105 deg")),
    Sketcher.Constraint("DistanceY", 3, 2, 2, 2, Q("0.1 in")),
    Sketcher.Constraint("DistanceX", 4, 2, 4, 1, Q("0.132 in")),
    Sketcher.Constraint("DistanceY", 1, 1, 1, 2, Q("0.225 in")),
    Sketcher.Constraint("DistanceX", 0, 2, -1, 1, 57.456381),
])
sketch18.setExpression("Constraints[18]", "Params.sketch18_width")
sketch18.setExpression("Constraints[21]", "Params.sketch18_width2")
sketch18.setExpression("Constraints[22]", "Params.sketch18_height")
pad14 = body16.newObject("PartDesign::Pad", "Pad013")
pad14.Profile = sketch18
pad14.setExpression("Length", "Params.pad14_length")

doc.recompute()
